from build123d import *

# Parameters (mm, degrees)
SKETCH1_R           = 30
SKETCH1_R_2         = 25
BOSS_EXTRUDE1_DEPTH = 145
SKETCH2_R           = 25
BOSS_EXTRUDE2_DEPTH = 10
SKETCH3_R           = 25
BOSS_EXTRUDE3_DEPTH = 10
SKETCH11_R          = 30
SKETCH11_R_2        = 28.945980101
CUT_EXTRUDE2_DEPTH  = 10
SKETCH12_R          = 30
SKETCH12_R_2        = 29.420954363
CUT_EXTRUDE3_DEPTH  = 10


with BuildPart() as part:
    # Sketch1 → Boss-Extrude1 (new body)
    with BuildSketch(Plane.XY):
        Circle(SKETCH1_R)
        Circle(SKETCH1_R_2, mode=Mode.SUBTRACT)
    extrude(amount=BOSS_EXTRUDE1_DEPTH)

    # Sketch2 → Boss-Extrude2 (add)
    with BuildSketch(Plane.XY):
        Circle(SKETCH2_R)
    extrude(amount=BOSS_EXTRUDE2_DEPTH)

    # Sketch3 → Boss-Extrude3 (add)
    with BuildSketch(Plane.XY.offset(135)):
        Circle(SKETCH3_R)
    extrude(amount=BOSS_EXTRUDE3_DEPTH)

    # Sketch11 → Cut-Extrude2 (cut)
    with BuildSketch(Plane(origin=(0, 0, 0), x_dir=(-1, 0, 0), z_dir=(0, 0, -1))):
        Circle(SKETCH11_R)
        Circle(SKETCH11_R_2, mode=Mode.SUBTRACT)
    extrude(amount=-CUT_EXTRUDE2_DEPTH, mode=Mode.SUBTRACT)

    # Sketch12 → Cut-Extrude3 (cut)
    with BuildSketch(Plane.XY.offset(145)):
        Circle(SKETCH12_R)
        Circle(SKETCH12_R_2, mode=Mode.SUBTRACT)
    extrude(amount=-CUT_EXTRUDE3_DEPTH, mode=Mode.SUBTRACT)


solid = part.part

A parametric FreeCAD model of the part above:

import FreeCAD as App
import Part
import Sketcher

doc = App.newDocument("Part")
params = doc.addObject("Spreadsheet::Sheet", "Params")
for row, (alias, value) in enumerate([
    ("sketch1_diameter", "60 mm"),
    ("sketch1_diameter2", "50 mm"),
    ("pad1_length", "145 mm"),
    ("sketch2_diameter", "50 mm"),
    ("pad2_length", "10 mm"),
    ("sketch3_diameter", "50 mm"),
    ("pad3_length", "10 mm"),
    ("sketch4_diameter", "60 mm"),
    ("pocket1_length", "10 mm"),
    ("sketch5_diameter", "60 mm"),
    ("pocket2_length", "10 mm"),
], start=1):
    params.set(f"A{row}", alias)
    params.set(f"B{row}", "=" + value)
    params.setAlias(f"B{row}", alias)

body = doc.addObject("PartDesign::Body", "Body")

sketch1 = doc.addObject("Sketcher::SketchObject", "Sketch")
body.addObject(sketch1)
sketch1.AttachmentSupport = (doc.XY_Plane, [""])
sketch1.MapMode = "FlatFace"
sketch1.addGeometry(Part.Circle(App.Vector(0, 0, 0), App.Vector(0, 0, 1), 30), False)
sketch1.addGeometry(Part.Circle(App.Vector(0, 0, 0), App.Vector(0, 0, 1), 25), False)
sketch1.addConstraint(Sketcher.Constraint("Coincident", 0, 3, -1, 1))
sketch1.addConstraint(Sketcher.Constraint("Coincident", 1, 3, -1, 1))
sketch1.addConstraint(Sketcher.Constraint("Diameter", 0, 60.0))
sketch1.addConstraint(Sketcher.Constraint("Diameter", 1, 50.0))
sketch1.setExpression("Constraints[2]", "Params.sketch1_diameter")
sketch1.setExpression("Constraints[3]", "Params.sketch1_diameter2")
pad1 = doc.addObject("PartDesign::Pad", "Pad")
body.addObject(pad1)
pad1.Profile = sketch1
pad1.setExpression("Length", "Params.pad1_length")

sketch2 = doc.addObject("Sketcher::SketchObject", "Sketch001")
body.addObject(sketch2)
sketch2.AttachmentSupport = (doc.XY_Plane, [""])
sketch2.MapMode = "FlatFace"
sketch2.addGeometry(Part.Circle(App.Vector(0, 0, 0), App.Vector(0, 0, 1), 25), False)
sketch2.addConstraint(Sketcher.Constraint("Coincident", 0, 3, -1, 1))
sketch2.addConstraint(Sketcher.Constraint("Diameter", 0, 50.0))
sketch2.setExpression("Constraints[1]", "Params.sketch2_diameter")
pad2 = doc.addObject("PartDesign::Pad", "Pad001")
body.addObject(pad2)
pad2.Profile = sketch2
pad2.setExpression("Length", "Params.pad2_length")

sketch3 = doc.addObject("Sketcher::SketchObject", "Sketch002")
body.addObject(sketch3)
sketch3.AttachmentSupport = (doc.XY_Plane, [""])
sketch3.MapMode = "FlatFace"
sketch3.AttachmentOffset = App.Placement(App.Vector(0, 0, 135), App.Rotation())
sketch3.addGeometry(Part.Circle(App.Vector(0, 0, 0), App.Vector(0, 0, 1), 25), False)
sketch3.addConstraint(Sketcher.Constraint("Coincident", 0, 3, -1, 1))
sketch3.addConstraint(Sketcher.Constraint("Diameter", 0, 50.0))
sketch3.setExpression("Constraints[1]", "Params.sketch3_diameter")
pad3 = doc.addObject("PartDesign::Pad", "Pad002")
body.addObject(pad3)
pad3.Profile = sketch3
pad3.setExpression("Length", "Params.pad3_length")

sketch4 = doc.addObject("Sketcher::SketchObject", "Sketch003")
body.addObject(sketch4)
sketch4.AttachmentSupport = (doc.XY_Plane, [""])
sketch4.MapMode = "FlatFace"
sketch4.addGeometry(Part.Circle(App.Vector(0, 0, 0), App.Vector(0, 0, 1), 30), False)
sketch4.addGeometry(Part.Circle(App.Vector(0, 0, 0), App.Vector(0, 0, 1), 29), False)
sketch4.addConstraint(Sketcher.Constraint("Coincident", 0, 3, -1, 1))
sketch4.addConstraint(Sketcher.Constraint("Coincident", 1, 3, -1, 1))
sketch4.addConstraint(Sketcher.Constraint("Diameter", 0, 60.0))
sketch4.addConstraint(Sketcher.Constraint("Diameter", 1, 57.89196))
sketch4.setExpression("Constraints[2]", "Params.sketch4_diameter")
pocket1 = doc.addObject("PartDesign::Pocket", "Pocket")
body.addObject(pocket1)
pocket1.Profile = sketch4
pocket1.setExpression("Length", "Params.pocket1_length")
pocket1.Reversed = True

sketch5 = doc.addObject("Sketcher::SketchObject", "Sketch004")
body.addObject(sketch5)
sketch5.AttachmentSupport = (doc.XY_Plane, [""])
sketch5.MapMode = "FlatFace"
sketch5.AttachmentOffset = App.Placement(App.Vector(0, 0, 145), App.Rotation())
sketch5.addGeometry(Part.Circle(App.Vector(0, 0, 0), App.Vector(0, 0, 1), 30), False)
sketch5.addGeometry(Part.Circle(App.Vector(0, 0, 0), App.Vector(0, 0, 1), 29), False)
sketch5.addConstraint(Sketcher.Constraint("Coincident", 0, 3, -1, 1))
sketch5.addConstraint(Sketcher.Constraint("Coincident", 1, 3, -1, 1))
sketch5.addConstraint(Sketcher.Constraint("Diameter", 0, 60.0))
sketch5.addConstraint(Sketcher.Constraint("Diameter", 1, 58.841909))
sketch5.setExpression("Constraints[2]", "Params.sketch5_diameter")
pocket2 = doc.addObject("PartDesign::Pocket", "Pocket001")
body.addObject(pocket2)
pocket2.Profile = sketch5
pocket2.setExpression("Length", "Params.pocket2_length")

doc.recompute()
